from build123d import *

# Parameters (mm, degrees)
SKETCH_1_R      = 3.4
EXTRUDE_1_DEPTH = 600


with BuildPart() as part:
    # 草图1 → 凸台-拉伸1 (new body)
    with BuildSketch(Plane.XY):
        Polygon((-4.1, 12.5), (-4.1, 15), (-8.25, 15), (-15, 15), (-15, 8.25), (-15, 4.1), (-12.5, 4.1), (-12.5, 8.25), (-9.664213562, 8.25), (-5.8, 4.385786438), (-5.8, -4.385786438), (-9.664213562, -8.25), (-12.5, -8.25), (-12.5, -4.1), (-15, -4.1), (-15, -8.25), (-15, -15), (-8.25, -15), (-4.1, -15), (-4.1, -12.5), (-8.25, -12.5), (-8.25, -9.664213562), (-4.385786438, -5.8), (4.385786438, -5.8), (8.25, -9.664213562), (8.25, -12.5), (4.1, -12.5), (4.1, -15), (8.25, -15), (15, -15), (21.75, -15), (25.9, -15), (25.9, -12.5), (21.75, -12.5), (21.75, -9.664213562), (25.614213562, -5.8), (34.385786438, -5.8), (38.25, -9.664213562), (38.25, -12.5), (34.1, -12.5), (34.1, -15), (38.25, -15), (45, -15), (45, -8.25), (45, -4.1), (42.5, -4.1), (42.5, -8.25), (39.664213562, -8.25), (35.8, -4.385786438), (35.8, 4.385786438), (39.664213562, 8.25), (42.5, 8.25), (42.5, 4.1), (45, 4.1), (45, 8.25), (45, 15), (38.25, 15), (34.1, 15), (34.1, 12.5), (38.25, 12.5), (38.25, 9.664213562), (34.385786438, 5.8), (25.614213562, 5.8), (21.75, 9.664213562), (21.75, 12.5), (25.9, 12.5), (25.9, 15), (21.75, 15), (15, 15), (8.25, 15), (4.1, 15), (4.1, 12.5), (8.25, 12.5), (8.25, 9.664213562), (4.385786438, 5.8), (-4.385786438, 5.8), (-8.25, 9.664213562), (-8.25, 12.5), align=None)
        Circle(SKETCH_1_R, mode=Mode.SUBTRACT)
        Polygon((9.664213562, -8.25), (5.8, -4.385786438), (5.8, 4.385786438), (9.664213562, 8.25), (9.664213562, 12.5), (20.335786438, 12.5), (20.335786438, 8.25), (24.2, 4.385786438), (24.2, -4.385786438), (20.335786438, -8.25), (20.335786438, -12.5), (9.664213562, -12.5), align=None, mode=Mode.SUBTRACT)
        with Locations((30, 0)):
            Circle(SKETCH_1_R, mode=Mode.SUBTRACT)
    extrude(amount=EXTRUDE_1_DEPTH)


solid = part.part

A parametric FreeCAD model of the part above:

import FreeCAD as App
import Part
import Sketcher

doc = App.newDocument("Part")
body = doc.addObject("PartDesign::Body", "Body")

sketch1 = doc.addObject("Sketcher::SketchObject", "Sketch")
body.addObject(sketch1)
sketch1.AttachmentSupport = (doc.XY_Plane, [""])
sketch1.MapMode = "FlatFace"
sketch1.addGeometry([
    Part.LineSegment(App.Vector(-4.1, 12.5, 0), App.Vector(-4.1, 15, 0)),
    Part.LineSegment(App.Vector(-4.1, 15, 0), App.Vector(-15, 15, 0)),
    Part.LineSegment(App.Vector(-15, 15, 0), App.Vector(-15, 4.1, 0)),
    Part.LineSegment(App.Vector(-15, 4.1, 0), App.Vector(-12.5, 4.1, 0)),
    Part.LineSegment(App.Vector(-12.5, 4.1, 0), App.Vector(-12.5, 8.2, 0)),
    Part.LineSegment(App.Vector(-12.5, 8.2, 0), App.Vector(-9.7, 8.2, 0)),
    Part.LineSegment(App.Vector(-9.7, 8.2, 0), App.Vector(-5.8, 4.4, 0)),
    Part.LineSegment(App.Vector(-5.8, 4.4, 0), App.Vector(-5.8, -4.4, 0)),
    Part.LineSegment(App.Vector(-5.8, -4.4, 0), App.Vector(-9.7, -8.2, 0)),
    Part.LineSegment(App.Vector(-9.7, -8.2, 0), App.Vector(-12.5, -8.2, 0)),
    Part.LineSegment(App.Vector(-12.5, -8.2, 0), App.Vector(-12.5, -4.1, 0)),
    Part.LineSegment(App.Vector(-12.5, -4.1, 0), App.Vector(-15, -4.1, 0)),
    Part.LineSegment(App.Vector(-15, -4.1, 0), App.Vector(-15, -15, 0)),
    Part.LineSegment(App.Vector(-15, -15, 0), App.Vector(-4.1, -15, 0)),
    Part.LineSegment(App.Vector(-4.1, -15, 0), App.Vector(-4.1, -12.5, 0)),
    Part.LineSegment(App.Vector(-4.1, -12.5, 0), App.Vector(-8.2, -12.5, 0)),
    Part.LineSegment(App.Vector(-8.2, -12.5, 0), App.Vector(-8.2, -9.7, 0)),
    Part.LineSegment(App.Vector(-8.2, -9.7, 0), App.Vector(-4.4, -5.8, 0)),
    Part.LineSegment(App.Vector(-4.4, -5.8, 0), App.Vector(4.4, -5.8, 0)),
    Part.LineSegment(App.Vector(4.4, -5.8, 0), App.Vector(8.2, -9.7, 0)),
    Part.LineSegment(App.Vector(8.2, -9.7, 0), App.Vector(8.2, -12.5, 0)),
    Part.LineSegment(App.Vector(8.2, -12.5, 0), App.Vector(4.1, -12.5, 0)),
    Part.LineSegment(App.Vector(4.1, -12.5, 0), App.Vector(4.1, -15, 0)),
    Part.LineSegment(App.Vector(4.1, -15, 0), App.Vector(25.9, -15, 0)),
    Part.LineSegment(App.Vector(25.9, -15, 0), App.Vector(25.9, -12.5, 0)),
    Part.LineSegment(App.Vector(25.9, -12.5, 0), App.Vector(21.8, -12.5, 0)),
    Part.LineSegment(App.Vector(21.8, -12.5, 0), App.Vector(21.8, -9.7, 0)),
    Part.LineSegment(App.Vector(21.8, -9.7, 0), App.Vector(25.6, -5.8, 0)),
    Part.LineSegment(App.Vector(25.6, -5.8, 0), App.Vector(34.4, -5.8, 0)),
    Part.LineSegment(App.Vector(34.4, -5.8, 0), App.Vector(38.2, -9.7, 0)),
    Part.LineSegment(App.Vector(38.2, -9.7, 0), App.Vector(38.2, -12.5, 0)),
    Part.LineSegment(App.Vector(38.2, -12.5, 0), App.Vector(34.1, -12.5, 0)),
    Part.LineSegment(App.Vector(34.1, -12.5, 0), App.Vector(34.1, -15, 0)),
    Part.LineSegment(App.Vector(34.1, -15, 0), App.Vector(45, -15, 0)),
    Part.LineSegment(App.Vector(45, -15, 0), App.Vector(45, -4.1, 0)),
    Part.LineSegment(App.Vector(45, -4.1, 0), App.Vector(42.5, -4.1, 0)),
    Part.LineSegment(App.Vector(42.5, -4.1, 0), App.Vector(42.5, -8.2, 0)),
    Part.LineSegment(App.Vector(42.5, -8.2, 0), App.Vector(39.7, -8.2, 0)),
    Part.LineSegment(App.Vector(39.7, -8.2, 0), App.Vector(35.8, -4.4, 0)),
    Part.LineSegment(App.Vector(35.8, -4.4, 0), App.Vector(35.8, 4.4, 0)),
    Part.LineSegment(App.Vector(35.8, 4.4, 0), App.Vector(39.7, 8.2, 0)),
    Part.LineSegment(App.Vector(39.7, 8.2, 0), App.Vector(42.5, 8.2, 0)),
    Part.LineSegment(App.Vector(42.5, 8.2, 0), App.Vector(42.5, 4.1, 0)),
    Part.LineSegment(App.Vector(42.5, 4.1, 0), App.Vector(45, 4.1, 0)),
    Part.LineSegment(App.Vector(45, 4.1, 0), App.Vector(45, 15, 0)),
    Part.LineSegment(App.Vector(45, 15, 0), App.Vector(34.1, 15, 0)),
    Part.LineSegment(App.Vector(34.1, 15, 0), App.Vector(34.1, 12.5, 0)),
    Part.LineSegment(App.Vector(34.1, 12.5, 0), App.Vector(38.2, 12.5, 0)),
    Part.LineSegment(App.Vector(38.2, 12.5, 0), App.Vector(38.2, 9.7, 0)),
    Part.LineSegment(App.Vector(38.2, 9.7, 0), App.Vector(34.4, 5.8, 0)),
    Part.LineSegment(App.Vector(34.4, 5.8, 0), App.Vector(25.6, 5.8, 0)),
    Part.LineSegment(App.Vector(25.6, 5.8, 0), App.Vector(21.8, 9.7, 0)),
    Part.LineSegment(App.Vector(21.8, 9.7, 0), App.Vector(21.8, 12.5, 0)),
    Part.LineSegment(App.Vector(21.8, 12.5, 0), App.Vector(25.9, 12.5, 0)),
    Part.LineSegment(App.Vector(25.9, 12.5, 0), App.Vector(25.9, 15, 0)),
    Part.LineSegment(App.Vector(25.9, 15, 0), App.Vector(4.1, 15, 0)),
    Part.LineSegment(App.Vector(4.1, 15, 0), App.Vector(4.1, 12.5, 0)),
    Part.LineSegment(App.Vector(4.1, 12.5, 0), App.Vector(8.2, 12.5, 0)),
    Part.LineSegment(App.Vector(8.2, 12.5, 0), App.Vector(8.2, 9.7, 0)),
    Part.LineSegment(App.Vector(8.2, 9.7, 0), App.Vector(4.4, 5.8, 0)),
    Part.LineSegment(App.Vector(4.4, 5.8, 0), App.Vector(-4.4, 5.8, 0)),
    Part.LineSegment(App.Vector(-4.4, 5.8, 0), App.Vector(-8.2, 9.7, 0)),
    Part.LineSegment(App.Vector(-8.2, 9.7, 0), App.Vector(-8.2, 12.5, 0)),
    Part.LineSegment(App.Vector(-8.2, 12.5, 0), App.Vector(-4.1, 12.5, 0)),
    Part.Circle(App.Vector(0, 0, 0), App.Vector(0, 0, 1), 3.4),
    Part.LineSegment(App.Vector(9.7, -12.5, 0), App.Vector(9.7, -8.2, 0)),
    Part.LineSegment(App.Vector(9.7, -8.2, 0), App.Vector(5.8, -4.4, 0)),
    Part.LineSegment(App.Vector(5.8, -4.4, 0), App.Vector(5.8, 4.4, 0)),
    Part.LineSegment(App.Vector(5.8, 4.4, 0), App.Vector(9.7, 8.2, 0)),
    Part.LineSegment(App.Vector(9.7, 8.2, 0), App.Vector(9.7, 12.5, 0)),
    Part.LineSegment(App.Vector(9.7, 12.5, 0), App.Vector(20.3, 12.5, 0)),
    Part.LineSegment(App.Vector(20.3, 12.5, 0), App.Vector(20.3, 8.2, 0)),
    Part.LineSegment(App.Vector(20.3, 8.2, 0), App.Vector(24.2, 4.4, 0)),
    Part.LineSegment(App.Vector(24.2, 4.4, 0), App.Vector(24.2, -4.4, 0)),
    Part.LineSegment(App.Vector(24.2, -4.4, 0), App.Vector(20.3, -8.2, 0)),
    Part.LineSegment(App.Vector(20.3, -8.2, 0), App.Vector(20.3, -12.5, 0)),
    Part.LineSegment(App.Vector(20.3, -12.5, 0), App.Vector(9.7, -12.5, 0)),
    Part.Circle(App.Vector(30, 0, 0), App.Vector(0, 0, 1), 3.4),
], False)
sketch1.addConstraint([
    Sketcher.Constraint("Coincident", 0, 2, 1, 1),
    Sketcher.Constraint("Coincident", 1, 2, 2, 1),
    Sketcher.Constraint("Coincident", 2, 2, 3, 1),
    Sketcher.Constraint("Coincident", 3, 2, 4, 1),
    Sketcher.Constraint("Coincident", 4, 2, 5, 1),
    Sketcher.Constraint("Coincident", 5, 2, 6, 1),
    Sketcher.Constraint("Coincident", 6, 2, 7, 1),
    Sketcher.Constraint("Coincident", 7, 2, 8, 1),
    Sketcher.Constraint("Coincident", 8, 2, 9, 1),
    Sketcher.Constraint("Coincident", 9, 2, 10, 1),
    Sketcher.Constraint("Coincident", 10, 2, 11, 1),
    Sketcher.Constraint("Coincident", 11, 2, 12, 1),
    Sketcher.Constraint("Coincident", 12, 2, 13, 1),
    Sketcher.Constraint("Coincident", 13, 2, 14, 1),
    Sketcher.Constraint("Coincident", 14, 2, 15, 1),
    Sketcher.Constraint("Coincident", 15, 2, 16, 1),
    Sketcher.Constraint("Coincident", 16, 2, 17, 1),
    Sketcher.Constraint("Coincident", 17, 2, 18, 1),
    Sketcher.Constraint("Coincident", 18, 2, 19, 1),
    Sketcher.Constraint("Coincident", 19, 2, 20, 1),
    Sketcher.Constraint("Coincident", 20, 2, 21, 1),
    Sketcher.Constraint("Coincident", 21, 2, 22, 1),
    Sketcher.Constraint("Coincident", 22, 2, 23, 1),
    Sketcher.Constraint("Coincident", 23, 2, 24, 1),
    Sketcher.Constraint("Coincident", 24, 2, 25, 1),
    Sketcher.Constraint("Coincident", 25, 2, 26, 1),
    Sketcher.Constraint("Coincident", 26, 2, 27, 1),
    Sketcher.Constraint("Coincident", 27, 2, 28, 1),
    Sketcher.Constraint("Coincident", 28, 2, 29, 1),
    Sketcher.Constraint("Coincident", 29, 2, 30, 1),
    Sketcher.Constraint("Coincident", 30, 2, 31, 1),
    Sketcher.Constraint("Coincident", 31, 2, 32, 1),
    Sketcher.Constraint("Coincident", 32, 2, 33, 1),
    Sketcher.Constraint("Coincident", 33, 2, 34, 1),
    Sketcher.Constraint("Coincident", 34, 2, 35, 1),
    Sketcher.Constraint("Coincident", 35, 2, 36, 1),
    Sketcher.Constraint("Coincident", 36, 2, 37, 1),
    Sketcher.Constraint("Coincident", 37, 2, 38, 1),
    Sketcher.Constraint("Coincident", 38, 2, 39, 1),
    Sketcher.Constraint("Coincident", 39, 2, 40, 1),
    Sketcher.Constraint("Coincident", 40, 2, 41, 1),
    Sketcher.Constraint("Coincident", 41, 2, 42, 1),
    Sketcher.Constraint("Coincident", 42, 2, 43, 1),
    Sketcher.Constraint("Coincident", 43, 2, 44, 1),
    Sketcher.Constraint("Coincident", 44, 2, 45, 1),
    Sketcher.Constraint("Coincident", 45, 2, 46, 1),
    Sketcher.Constraint("Coincident", 46, 2, 47, 1),
    Sketcher.Constraint("Coincident", 47, 2, 48, 1),
    Sketcher.Constraint("Coincident", 48, 2, 49, 1),
    Sketcher.Constraint("Coincident", 49, 2, 50, 1),
    Sketcher.Constraint("Coincident", 50, 2, 51, 1),
    Sketcher.Constraint("Coincident", 51, 2, 52, 1),
    Sketcher.Constraint("Coincident", 52, 2, 53, 1),
    Sketcher.Constraint("Coincident", 53, 2, 54, 1),
    Sketcher.Constraint("Coincident", 54, 2, 55, 1),
    Sketcher.Constraint("Coincident", 55, 2, 56, 1),
    Sketcher.Constraint("Coincident", 56, 2, 57, 1),
    Sketcher.Constraint("Coincident", 57, 2, 58, 1),
    Sketcher.Constraint("Coincident", 58, 2, 59, 1),
    Sketcher.Constraint("Coincident", 59, 2, 60, 1),
    Sketcher.Constraint("Coincident", 60, 2, 61, 1),
    Sketcher.Constraint("Coincident", 61, 2, 62, 1),
    Sketcher.Constraint("Coincident", 62, 2, 63, 1),
    Sketcher.Constraint("Coincident", 63, 2, 0, 1),
    Sketcher.Constraint("Coincident", 65, 2, 66, 1),
    Sketcher.Constraint("Coincident", 66, 2, 67, 1),
    Sketcher.Constraint("Coincident", 67, 2, 68, 1),
    Sketcher.Constraint("Coincident", 68, 2, 69, 1),
    Sketcher.Constraint("Coincident", 69, 2, 70, 1),
    Sketcher.Constraint("Coincident", 70, 2, 71, 1),
    Sketcher.Constraint("Coincident", 71, 2, 72, 1),
    Sketcher.Constraint("Coincident", 72, 2, 73, 1),
    Sketcher.Constraint("Coincident", 73, 2, 74, 1),
    Sketcher.Constraint("Coincident", 74, 2, 75, 1),
    Sketcher.Constraint("Coincident", 75, 2, 76, 1),
    Sketcher.Constraint("Coincident", 76, 2, 65, 1),
    Sketcher.Constraint("Vertical", 0),
    Sketcher.Constraint("Horizontal", 1),
    Sketcher.Constraint("Vertical", 2),
    Sketcher.Constraint("Horizontal", 3),
    Sketcher.Constraint("Vertical", 4),
    Sketcher.Constraint("Horizontal", 5),
    Sketcher.Constraint("Vertical", 7),
    Sketcher.Constraint("Horizontal", 9),
    Sketcher.Constraint("Vertical", 10),
    Sketcher.Constraint("Horizontal", 11),
    Sketcher.Constraint("Vertical", 12),
    Sketcher.Constraint("Horizontal", 13),
    Sketcher.Constraint("Vertical", 14),
    Sketcher.Constraint("Horizontal", 15),
    Sketcher.Constraint("Vertical", 16),
    Sketcher.Constraint("Horizontal", 18),
    Sketcher.Constraint("Vertical", 20),
    Sketcher.Constraint("Horizontal", 21),
    Sketcher.Constraint("Vertical", 22),
    Sketcher.Constraint("Horizontal", 23),
    Sketcher.Constraint("Vertical", 24),
    Sketcher.Constraint("Horizontal", 25),
    Sketcher.Constraint("Vertical", 26),
    Sketcher.Constraint("Horizontal", 28),
    Sketcher.Constraint("Vertical", 30),
    Sketcher.Constraint("Horizontal", 31),
    Sketcher.Constraint("Vertical", 32),
    Sketcher.Constraint("Horizontal", 33),
    Sketcher.Constraint("Vertical", 34),
    Sketcher.Constraint("Horizontal", 35),
    Sketcher.Constraint("Vertical", 36),
    Sketcher.Constraint("Horizontal", 37),
    Sketcher.Constraint("Vertical", 39),
    Sketcher.Constraint("Horizontal", 41),
    Sketcher.Constraint("Vertical", 42),
    Sketcher.Constraint("Horizontal", 43),
    Sketcher.Constraint("Vertical", 44),
    Sketcher.Constraint("Horizontal", 45),
    Sketcher.Constraint("Vertical", 46),
    Sketcher.Constraint("Horizontal", 47),
    Sketcher.Constraint("Vertical", 48),
    Sketcher.Constraint("Horizontal", 50),
    Sketcher.Constraint("Vertical", 52),
    Sketcher.Constraint("Horizontal", 53),
    Sketcher.Constraint("Vertical", 54),
    Sketcher.Constraint("Horizontal", 55),
    Sketcher.Constraint("Vertical", 56),
    Sketcher.Constraint("Horizontal", 57),
    Sketcher.Constraint("Vertical", 58),
    Sketcher.Constraint("Horizontal", 60),
    Sketcher.Constraint("Vertical", 62),
    Sketcher.Constraint("Horizontal", 63),
    Sketcher.Constraint("Vertical", 65),
    Sketcher.Constraint("Vertical", 67),
    Sketcher.Constraint("Vertical", 69),
    Sketcher.Constraint("Horizontal", 70),
    Sketcher.Constraint("Vertical", 71),
    Sketcher.Constraint("Vertical", 73),
    Sketcher.Constraint("Vertical", 75),
    Sketcher.Constraint("Horizontal", 76),
    Sketcher.Constraint("Coincident", 64, 3, -1, 1),
    Sketcher.Constraint("Equal", 64, 77),
    Sketcher.Constraint("Symmetric", 0, 2, 22, 2, -1, 1),
    Sketcher.Constraint("Symmetric", 13, 2, 55, 2, -1, 1),
    Sketcher.Constraint("Symmetric", 15, 2, 57, 2, -1, 1),
    Sketcher.Constraint("Symmetric", 17, 2, 59, 2, -1, 1),
    Sketcher.Constraint("Symmetric", 19, 2, 61, 2, -1, 1),
    Sketcher.Constraint("Symmetric", 5, 2, 65, 2, -1, 1),
    Sketcher.Constraint("Symmetric", 6, 2, 66, 2, -1, 1),
    Sketcher.Constraint("Symmetric", 8, 2, 68, 2, -1, 1),
    Sketcher.Constraint("Symmetric", 16, 2, 19, 2, -2),
    Sketcher.Constraint("Symmetric", 14, 2, 21, 2, -2),
    Sketcher.Constraint("Symmetric", 8, 2, 65, 2, -2),
    Sketcher.Constraint("Symmetric", 3, 2, 10, 2, -1),
    Sketcher.Constraint("Symmetric", 1, 2, 12, 2, -1),
    Sketcher.Constraint("Symmetric", 37, 2, 40, 2, -1),
    Sketcher.Constraint("Symmetric", 35, 2, 42, 2, -1),
    Sketcher.Constraint("Symmetric", 33, 2, 44, 2, -1),
    Sketcher.Constraint("Symmetric", 31, 2, 46, 2, -1),
    Sketcher.Constraint("Symmetric", 29, 2, 48, 2, -1),
    Sketcher.Constraint("Symmetric", 28, 2, 49, 2, -1),
    Sketcher.Constraint("Symmetric", 26, 2, 51, 2, -1),
    Sketcher.Constraint("Symmetric", 24, 2, 53, 2, -1),
    Sketcher.Constraint("Symmetric", 71, 2, 74, 2, -1),
    Sketcher.Constraint("PointOnObject", 77, 3, -1),
    Sketcher.Constraint("Perpendicular", 6, 8),
    Sketcher.Constraint("Parallel", 8, 17),
    Sketcher.Constraint("Perpendicular", 17, 19),
    Sketcher.Constraint("Perpendicular", 19, 27),
    Sketcher.Constraint("Perpendicular", 27, 29),
    Sketcher.Constraint("Parallel", 29, 38),
    Sketcher.Constraint("Perpendicular", 38, 40),
    Sketcher.Constraint("Parallel", 40, 49),
    Sketcher.Constraint("Perpendicular", 49, 51),
    Sketcher.Constraint("Perpendicular", 51, 59),
    Sketcher.Constraint("Perpendicular", 59, 61),
    Sketcher.Constraint("Perpendicular", 66, 68),
    Sketcher.Constraint("Perpendicular", 68, 72),
    Sketcher.Constraint("Perpendicular", 72, 74),
    Sketcher.Constraint("Horizontal", 21, 2, 24, 2),
    Sketcher.Constraint("Horizontal", 19, 2, 26, 2),
    Sketcher.Constraint("Horizontal", 18, 2, 27, 2),
    Sketcher.Constraint("Horizontal", 26, 2, 29, 2),
    Sketcher.Constraint("Horizontal", 25, 2, 30, 2),
    Sketcher.Constraint("Horizontal", 23, 2, 32, 2),
    Sketcher.Constraint("Horizontal", 11, 2, 34, 2),
    Sketcher.Constraint("Horizontal", 9, 2, 36, 2),
    Sketcher.Constraint("Horizontal", 7, 2, 38, 2),
    Sketcher.Constraint("Horizontal", 57, 2, 62, 2),
    Sketcher.Constraint("Horizontal", 63, 2, 69, 2),
    Sketcher.Constraint("Horizontal", 68, 2, 71, 2),
    Sketcher.Constraint("Horizontal", 67, 2, 72, 2),
    Sketcher.Constraint("Horizontal", 31, 2, 75, 2),
    Sketcher.Constraint("Equal", 21, 25),
    Sketcher.Constraint("Equal", 18, 28),
    Sketcher.Constraint("Equal", 25, 31),
    Sketcher.Constraint("Equal", 13, 33),
    Sketcher.Constraint("Equal", 11, 35),
    Sketcher.Constraint("Equal", 9, 37),
    Sketcher.Constraint("Equal", 43, 0),
    Sketcher.Constraint("Equal", 45, 2),
    Sketcher.Constraint("Equal", 63, 4),
    Sketcher.Constraint("Equal", 60, 7),
    Sketcher.Constraint("Equal", 41, 16),
    Sketcher.Constraint("Equal", 8, 17),
    Sketcher.Constraint("Diameter", 64, 6.8),
    Sketcher.Constraint("DistanceX", 1, 2, 1, 1, 10.9),
    Sketcher.Constraint("DistanceX", 3, 1, 3, 2, 2.5),
    Sketcher.Constraint("DistanceX", 23, 1, 23, 2, 21.8),
    Sketcher.Constraint("DistanceX", -1, 1, 77, 3, 30.0),
    Sketcher.Constraint("DistanceY", -1, 1, 0, 2, 15.0),
    Sketcher.Constraint("DistanceX", 15, 2, 15, 1, 4.15),
    Sketcher.Constraint("DistanceX", 6, 2, -1, 1, 5.8),
    Sketcher.Constraint("DistanceX", -1, 1, 72, 2, 24.2),
    Sketcher.Constraint("DistanceX", 5, 1, 5, 2, 2.835786),
])
pad1 = doc.addObject("PartDesign::Pad", "Pad")
body.addObject(pad1)
pad1.Profile = sketch1
pad1.Length = 600

doc.recompute()
